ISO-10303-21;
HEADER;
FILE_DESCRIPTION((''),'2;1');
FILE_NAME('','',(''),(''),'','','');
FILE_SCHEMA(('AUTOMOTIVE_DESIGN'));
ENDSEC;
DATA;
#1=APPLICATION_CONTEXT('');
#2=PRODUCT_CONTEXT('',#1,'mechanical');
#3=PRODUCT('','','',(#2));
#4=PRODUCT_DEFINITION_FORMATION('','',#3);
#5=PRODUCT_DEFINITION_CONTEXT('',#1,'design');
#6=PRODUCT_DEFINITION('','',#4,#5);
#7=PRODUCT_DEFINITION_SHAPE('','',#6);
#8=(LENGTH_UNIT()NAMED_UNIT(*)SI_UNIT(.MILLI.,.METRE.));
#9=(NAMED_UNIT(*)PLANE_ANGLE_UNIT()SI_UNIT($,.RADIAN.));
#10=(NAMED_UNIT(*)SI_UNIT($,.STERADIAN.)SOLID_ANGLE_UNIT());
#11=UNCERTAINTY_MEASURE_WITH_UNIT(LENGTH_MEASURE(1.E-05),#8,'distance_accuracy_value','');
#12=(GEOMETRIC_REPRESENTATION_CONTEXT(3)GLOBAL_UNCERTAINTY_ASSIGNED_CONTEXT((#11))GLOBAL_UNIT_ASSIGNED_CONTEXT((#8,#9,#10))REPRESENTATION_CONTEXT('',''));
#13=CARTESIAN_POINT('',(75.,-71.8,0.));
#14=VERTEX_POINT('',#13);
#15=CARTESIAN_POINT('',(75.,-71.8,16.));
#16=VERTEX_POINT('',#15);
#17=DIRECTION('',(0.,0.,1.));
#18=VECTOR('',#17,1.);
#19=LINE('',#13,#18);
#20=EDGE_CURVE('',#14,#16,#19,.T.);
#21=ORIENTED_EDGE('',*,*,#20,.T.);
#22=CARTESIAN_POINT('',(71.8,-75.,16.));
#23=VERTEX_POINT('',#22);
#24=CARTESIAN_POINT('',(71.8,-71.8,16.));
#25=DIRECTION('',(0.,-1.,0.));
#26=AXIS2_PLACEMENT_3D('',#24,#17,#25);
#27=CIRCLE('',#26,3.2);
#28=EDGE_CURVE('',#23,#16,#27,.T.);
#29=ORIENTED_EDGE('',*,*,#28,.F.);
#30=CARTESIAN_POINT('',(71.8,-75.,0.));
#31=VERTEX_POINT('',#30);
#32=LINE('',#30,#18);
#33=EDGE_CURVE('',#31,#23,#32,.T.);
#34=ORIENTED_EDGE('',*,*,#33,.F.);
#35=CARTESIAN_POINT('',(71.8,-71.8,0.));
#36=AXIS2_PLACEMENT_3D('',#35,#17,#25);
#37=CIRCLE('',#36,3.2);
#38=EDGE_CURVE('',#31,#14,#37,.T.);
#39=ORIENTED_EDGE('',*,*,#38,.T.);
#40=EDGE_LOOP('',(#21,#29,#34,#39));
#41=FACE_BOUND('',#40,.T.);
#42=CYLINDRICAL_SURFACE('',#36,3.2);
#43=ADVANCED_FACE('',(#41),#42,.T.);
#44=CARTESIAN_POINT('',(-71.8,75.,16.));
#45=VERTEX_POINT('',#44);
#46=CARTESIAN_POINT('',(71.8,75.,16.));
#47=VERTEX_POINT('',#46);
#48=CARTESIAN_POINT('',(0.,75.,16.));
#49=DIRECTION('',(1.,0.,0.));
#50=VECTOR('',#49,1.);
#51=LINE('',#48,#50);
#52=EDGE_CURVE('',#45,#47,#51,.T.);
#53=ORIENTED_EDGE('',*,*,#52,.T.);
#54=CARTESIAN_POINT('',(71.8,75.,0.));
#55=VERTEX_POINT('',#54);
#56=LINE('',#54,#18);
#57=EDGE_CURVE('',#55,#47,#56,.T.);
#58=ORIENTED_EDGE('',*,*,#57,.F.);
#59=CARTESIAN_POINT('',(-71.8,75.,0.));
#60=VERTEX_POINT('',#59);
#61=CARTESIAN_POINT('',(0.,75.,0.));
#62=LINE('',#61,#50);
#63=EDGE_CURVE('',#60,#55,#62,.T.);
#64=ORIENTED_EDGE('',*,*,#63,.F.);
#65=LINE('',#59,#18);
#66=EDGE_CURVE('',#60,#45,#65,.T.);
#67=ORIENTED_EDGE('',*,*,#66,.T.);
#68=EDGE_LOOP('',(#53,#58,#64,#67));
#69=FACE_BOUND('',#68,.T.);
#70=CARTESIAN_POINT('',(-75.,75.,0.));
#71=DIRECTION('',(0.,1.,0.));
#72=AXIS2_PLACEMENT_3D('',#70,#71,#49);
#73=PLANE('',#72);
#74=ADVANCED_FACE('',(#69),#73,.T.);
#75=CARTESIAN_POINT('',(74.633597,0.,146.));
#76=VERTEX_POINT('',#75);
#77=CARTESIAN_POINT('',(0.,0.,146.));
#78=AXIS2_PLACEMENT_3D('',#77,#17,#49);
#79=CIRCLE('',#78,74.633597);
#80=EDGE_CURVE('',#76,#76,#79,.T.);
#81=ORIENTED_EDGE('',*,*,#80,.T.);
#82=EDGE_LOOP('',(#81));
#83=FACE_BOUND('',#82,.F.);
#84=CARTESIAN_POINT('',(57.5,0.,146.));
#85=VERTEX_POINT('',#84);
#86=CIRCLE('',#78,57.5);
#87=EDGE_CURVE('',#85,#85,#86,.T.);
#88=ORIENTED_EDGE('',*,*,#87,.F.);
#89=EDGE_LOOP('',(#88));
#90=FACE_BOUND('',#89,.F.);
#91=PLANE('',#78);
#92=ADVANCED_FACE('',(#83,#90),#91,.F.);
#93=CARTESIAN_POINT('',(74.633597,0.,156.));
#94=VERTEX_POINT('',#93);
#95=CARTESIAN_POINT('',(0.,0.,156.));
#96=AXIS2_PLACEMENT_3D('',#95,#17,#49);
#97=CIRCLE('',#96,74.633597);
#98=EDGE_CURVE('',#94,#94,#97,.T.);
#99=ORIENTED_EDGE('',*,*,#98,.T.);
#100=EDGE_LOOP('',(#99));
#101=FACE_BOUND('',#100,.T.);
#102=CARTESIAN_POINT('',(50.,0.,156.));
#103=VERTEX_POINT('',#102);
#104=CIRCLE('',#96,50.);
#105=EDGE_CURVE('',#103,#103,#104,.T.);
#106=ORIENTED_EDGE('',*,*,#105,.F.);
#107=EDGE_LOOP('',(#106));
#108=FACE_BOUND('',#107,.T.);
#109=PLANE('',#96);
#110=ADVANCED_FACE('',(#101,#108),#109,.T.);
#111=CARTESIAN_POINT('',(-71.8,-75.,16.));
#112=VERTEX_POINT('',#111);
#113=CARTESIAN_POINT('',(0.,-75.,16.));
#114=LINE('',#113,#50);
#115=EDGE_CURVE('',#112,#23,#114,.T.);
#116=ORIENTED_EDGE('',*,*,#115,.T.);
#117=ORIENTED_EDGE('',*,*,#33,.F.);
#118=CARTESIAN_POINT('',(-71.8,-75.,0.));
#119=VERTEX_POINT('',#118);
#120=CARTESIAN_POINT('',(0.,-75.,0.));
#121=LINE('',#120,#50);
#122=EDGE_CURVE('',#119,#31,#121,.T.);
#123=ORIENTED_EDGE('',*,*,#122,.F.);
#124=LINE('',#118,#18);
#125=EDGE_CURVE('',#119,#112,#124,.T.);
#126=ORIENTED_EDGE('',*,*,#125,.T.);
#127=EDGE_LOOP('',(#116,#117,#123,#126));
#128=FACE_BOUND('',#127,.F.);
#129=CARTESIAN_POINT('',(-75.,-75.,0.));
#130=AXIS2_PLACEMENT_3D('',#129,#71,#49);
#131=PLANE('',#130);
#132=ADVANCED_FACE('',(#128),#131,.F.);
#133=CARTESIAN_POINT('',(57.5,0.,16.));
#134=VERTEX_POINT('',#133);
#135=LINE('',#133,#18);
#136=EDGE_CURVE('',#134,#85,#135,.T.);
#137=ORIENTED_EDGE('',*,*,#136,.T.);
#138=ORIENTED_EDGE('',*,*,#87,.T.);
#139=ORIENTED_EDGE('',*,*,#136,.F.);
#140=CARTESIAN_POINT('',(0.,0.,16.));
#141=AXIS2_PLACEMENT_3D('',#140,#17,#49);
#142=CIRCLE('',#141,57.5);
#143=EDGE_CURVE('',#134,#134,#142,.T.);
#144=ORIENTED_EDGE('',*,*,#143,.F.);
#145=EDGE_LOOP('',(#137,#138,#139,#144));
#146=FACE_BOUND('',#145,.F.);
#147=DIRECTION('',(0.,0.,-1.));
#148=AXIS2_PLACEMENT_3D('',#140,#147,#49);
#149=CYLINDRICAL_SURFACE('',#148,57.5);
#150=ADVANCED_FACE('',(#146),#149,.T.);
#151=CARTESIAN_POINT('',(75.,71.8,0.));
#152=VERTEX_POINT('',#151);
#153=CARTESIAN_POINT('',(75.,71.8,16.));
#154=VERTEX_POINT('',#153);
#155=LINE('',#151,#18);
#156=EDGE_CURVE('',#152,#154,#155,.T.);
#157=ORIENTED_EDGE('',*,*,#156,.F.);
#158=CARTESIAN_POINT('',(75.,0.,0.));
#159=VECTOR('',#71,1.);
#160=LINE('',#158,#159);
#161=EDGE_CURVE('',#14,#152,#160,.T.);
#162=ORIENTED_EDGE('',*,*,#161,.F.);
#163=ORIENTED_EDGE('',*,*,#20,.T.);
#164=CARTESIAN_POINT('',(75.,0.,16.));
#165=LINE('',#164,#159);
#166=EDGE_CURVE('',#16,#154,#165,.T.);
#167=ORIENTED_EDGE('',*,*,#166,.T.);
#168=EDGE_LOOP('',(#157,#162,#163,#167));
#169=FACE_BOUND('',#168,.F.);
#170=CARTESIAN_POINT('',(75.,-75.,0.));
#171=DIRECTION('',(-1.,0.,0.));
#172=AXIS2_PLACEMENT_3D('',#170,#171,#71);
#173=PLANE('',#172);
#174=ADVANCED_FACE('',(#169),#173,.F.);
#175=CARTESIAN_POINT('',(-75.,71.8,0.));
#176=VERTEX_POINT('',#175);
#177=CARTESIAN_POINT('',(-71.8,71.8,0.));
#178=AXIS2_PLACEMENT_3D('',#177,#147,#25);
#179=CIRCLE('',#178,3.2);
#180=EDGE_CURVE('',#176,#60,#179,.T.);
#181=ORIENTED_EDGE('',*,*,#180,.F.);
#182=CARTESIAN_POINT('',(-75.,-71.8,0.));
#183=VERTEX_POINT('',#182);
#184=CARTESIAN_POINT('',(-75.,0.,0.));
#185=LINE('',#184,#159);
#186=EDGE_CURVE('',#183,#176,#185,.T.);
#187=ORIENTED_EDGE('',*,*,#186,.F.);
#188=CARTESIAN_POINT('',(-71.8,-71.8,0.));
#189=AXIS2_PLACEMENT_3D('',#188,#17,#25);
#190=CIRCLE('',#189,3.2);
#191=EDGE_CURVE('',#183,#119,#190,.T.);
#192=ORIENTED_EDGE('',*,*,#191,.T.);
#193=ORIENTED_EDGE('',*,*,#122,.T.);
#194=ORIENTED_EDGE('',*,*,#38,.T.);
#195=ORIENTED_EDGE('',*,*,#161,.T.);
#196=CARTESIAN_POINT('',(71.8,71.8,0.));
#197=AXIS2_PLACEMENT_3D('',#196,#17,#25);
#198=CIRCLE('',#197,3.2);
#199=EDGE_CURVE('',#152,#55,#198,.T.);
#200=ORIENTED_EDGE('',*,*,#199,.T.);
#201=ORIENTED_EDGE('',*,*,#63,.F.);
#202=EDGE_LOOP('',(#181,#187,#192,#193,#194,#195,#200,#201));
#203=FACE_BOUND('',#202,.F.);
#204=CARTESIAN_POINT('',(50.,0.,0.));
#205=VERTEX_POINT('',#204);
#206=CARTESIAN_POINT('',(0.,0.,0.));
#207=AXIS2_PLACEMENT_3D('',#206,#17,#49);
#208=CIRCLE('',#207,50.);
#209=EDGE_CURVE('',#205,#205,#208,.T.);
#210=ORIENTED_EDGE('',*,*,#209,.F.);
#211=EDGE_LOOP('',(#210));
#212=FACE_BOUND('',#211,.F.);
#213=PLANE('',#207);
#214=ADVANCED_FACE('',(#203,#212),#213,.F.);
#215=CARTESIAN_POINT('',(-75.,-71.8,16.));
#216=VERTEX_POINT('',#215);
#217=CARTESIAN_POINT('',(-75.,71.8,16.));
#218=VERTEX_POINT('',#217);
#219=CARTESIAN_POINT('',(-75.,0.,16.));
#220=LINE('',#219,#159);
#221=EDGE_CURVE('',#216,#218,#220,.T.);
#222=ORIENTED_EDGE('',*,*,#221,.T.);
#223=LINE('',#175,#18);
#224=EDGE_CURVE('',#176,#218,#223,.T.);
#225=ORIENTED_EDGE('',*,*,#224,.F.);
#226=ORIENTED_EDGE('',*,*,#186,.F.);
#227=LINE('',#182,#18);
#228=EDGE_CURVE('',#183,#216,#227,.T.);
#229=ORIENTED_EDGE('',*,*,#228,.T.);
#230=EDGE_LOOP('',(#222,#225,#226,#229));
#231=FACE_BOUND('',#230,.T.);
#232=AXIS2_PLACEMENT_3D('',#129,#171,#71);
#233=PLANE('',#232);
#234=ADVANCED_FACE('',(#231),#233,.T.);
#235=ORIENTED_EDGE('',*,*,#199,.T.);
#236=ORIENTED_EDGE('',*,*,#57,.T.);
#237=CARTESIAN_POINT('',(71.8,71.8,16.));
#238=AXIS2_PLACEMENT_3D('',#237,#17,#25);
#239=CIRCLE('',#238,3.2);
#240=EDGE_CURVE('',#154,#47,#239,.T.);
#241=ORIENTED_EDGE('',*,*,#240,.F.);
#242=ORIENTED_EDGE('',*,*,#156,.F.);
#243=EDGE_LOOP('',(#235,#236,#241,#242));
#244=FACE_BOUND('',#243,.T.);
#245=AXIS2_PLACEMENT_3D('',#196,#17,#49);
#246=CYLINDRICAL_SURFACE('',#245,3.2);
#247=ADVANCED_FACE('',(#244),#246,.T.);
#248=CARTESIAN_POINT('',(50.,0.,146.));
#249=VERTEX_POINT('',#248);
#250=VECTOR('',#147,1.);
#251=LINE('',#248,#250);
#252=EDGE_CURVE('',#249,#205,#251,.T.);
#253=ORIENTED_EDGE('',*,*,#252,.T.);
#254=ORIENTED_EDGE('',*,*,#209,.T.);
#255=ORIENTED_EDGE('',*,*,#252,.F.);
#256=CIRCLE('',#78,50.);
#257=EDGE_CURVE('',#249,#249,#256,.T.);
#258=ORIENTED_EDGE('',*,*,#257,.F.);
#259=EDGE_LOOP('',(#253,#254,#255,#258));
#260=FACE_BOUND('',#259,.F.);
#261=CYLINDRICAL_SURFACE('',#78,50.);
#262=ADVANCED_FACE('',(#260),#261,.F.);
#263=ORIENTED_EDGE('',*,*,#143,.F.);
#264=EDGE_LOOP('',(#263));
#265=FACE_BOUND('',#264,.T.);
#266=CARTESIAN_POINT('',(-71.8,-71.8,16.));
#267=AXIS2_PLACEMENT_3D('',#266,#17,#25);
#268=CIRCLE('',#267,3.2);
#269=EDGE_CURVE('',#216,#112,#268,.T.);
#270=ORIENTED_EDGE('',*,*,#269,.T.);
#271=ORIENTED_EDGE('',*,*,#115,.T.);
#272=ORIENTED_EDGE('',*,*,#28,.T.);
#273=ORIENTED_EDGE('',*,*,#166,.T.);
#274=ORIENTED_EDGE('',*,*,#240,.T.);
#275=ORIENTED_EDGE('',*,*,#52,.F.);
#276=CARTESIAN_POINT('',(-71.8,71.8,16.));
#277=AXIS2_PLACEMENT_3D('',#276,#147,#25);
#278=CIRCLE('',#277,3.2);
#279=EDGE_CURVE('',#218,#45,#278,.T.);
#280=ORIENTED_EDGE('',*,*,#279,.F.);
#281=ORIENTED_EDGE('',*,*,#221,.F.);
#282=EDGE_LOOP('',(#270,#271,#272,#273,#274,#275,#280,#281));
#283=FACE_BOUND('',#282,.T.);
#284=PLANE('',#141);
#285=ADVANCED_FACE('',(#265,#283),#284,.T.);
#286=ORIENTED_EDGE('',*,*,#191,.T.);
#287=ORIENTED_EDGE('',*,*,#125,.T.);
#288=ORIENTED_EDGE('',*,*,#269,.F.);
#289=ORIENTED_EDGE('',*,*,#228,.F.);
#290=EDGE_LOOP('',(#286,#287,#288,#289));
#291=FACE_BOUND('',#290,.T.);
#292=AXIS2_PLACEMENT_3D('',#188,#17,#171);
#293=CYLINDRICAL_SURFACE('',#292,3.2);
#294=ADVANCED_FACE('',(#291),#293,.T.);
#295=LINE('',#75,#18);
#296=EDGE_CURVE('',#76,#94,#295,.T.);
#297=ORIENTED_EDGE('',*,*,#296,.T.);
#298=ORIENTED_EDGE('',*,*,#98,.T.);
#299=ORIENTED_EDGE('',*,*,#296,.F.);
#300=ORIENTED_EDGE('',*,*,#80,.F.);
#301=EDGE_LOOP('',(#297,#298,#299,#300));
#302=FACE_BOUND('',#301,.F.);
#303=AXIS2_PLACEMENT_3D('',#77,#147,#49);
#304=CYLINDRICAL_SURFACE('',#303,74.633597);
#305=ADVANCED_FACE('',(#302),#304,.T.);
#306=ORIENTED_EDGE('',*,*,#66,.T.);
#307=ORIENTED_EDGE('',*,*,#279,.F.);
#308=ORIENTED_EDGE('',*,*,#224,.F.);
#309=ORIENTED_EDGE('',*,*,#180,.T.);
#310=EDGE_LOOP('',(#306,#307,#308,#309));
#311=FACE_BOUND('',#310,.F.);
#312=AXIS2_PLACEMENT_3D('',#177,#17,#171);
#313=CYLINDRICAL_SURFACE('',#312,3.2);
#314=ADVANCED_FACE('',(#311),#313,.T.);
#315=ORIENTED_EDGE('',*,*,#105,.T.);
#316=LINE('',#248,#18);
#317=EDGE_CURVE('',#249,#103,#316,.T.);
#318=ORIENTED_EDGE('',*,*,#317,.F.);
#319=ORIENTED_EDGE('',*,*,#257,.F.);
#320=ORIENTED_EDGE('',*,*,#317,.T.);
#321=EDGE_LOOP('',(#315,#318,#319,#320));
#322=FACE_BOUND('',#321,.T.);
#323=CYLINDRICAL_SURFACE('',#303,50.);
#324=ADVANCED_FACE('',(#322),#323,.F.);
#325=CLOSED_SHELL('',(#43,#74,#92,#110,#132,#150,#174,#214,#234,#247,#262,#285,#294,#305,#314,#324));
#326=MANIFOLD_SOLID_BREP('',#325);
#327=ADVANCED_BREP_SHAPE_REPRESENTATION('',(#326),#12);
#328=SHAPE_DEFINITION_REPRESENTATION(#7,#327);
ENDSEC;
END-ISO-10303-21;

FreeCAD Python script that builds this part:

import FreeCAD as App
import Part
import Sketcher

V = App.Vector


def edges_at(feature, points):
    """Names of the edges that pass closest to the given points."""
    edges = feature.Shape.Edges
    near = lambda p: min(range(len(edges)), key=lambda i: edges[i].distToShape(Part.Vertex(*p))[0])
    return sorted({f"Edge{near(p) + 1}" for p in points})


def add_polygon(sketch, points):
    """Adds a closed chain of lines whose ends are joined by coincident constraints."""
    first, n = sketch.GeometryCount, len(points)
    for a, b in zip(points, points[1:] + points[:1]):
        sketch.addGeometry(Part.LineSegment(App.Vector(*a, 0), App.Vector(*b, 0)), False)
    for i in range(n):
        sketch.addConstraint(Sketcher.Constraint("Coincident", first + i, 2, first + (i + 1) % n, 1))

doc = App.newDocument("Part")
params = doc.addObject("Spreadsheet::Sheet", "Params")
for row, (alias, value) in enumerate([
    ("sketch1_width", "150 mm"),
    ("pad1_length", "16 mm"),
    ("fillet_radius", "3.2 mm"),
    ("sketch2_diameter", "115 mm"),
    ("pad2_length", "130 mm"),
    ("sketch3_diameter", "100 mm"),
    ("sketch4_diameter", "100 mm"),
    ("pad3_length", "10 mm"),
], start=1):
    params.set(f"A{row}", alias)
    params.set(f"B{row}", "=" + value)
    params.setAlias(f"B{row}", alias)

body = doc.addObject("PartDesign::Body", "Body")

# Sketch on XY plane
sketch1 = doc.addObject("Sketcher::SketchObject", "Sketch")
body.addObject(sketch1)
sketch1.AttachmentSupport = (doc.XY_Plane, [""])
sketch1.MapMode = "FlatFace"
add_polygon(sketch1, [(-75, 75), (-75, -75), (75, -75), (75, 75)])  # lines 0-3
sketch1.addConstraint(Sketcher.Constraint("Vertical", 0))
sketch1.addConstraint(Sketcher.Constraint("Horizontal", 1))
sketch1.addConstraint(Sketcher.Constraint("Vertical", 2))
sketch1.addConstraint(Sketcher.Constraint("Horizontal", 3))
sketch1.addConstraint(Sketcher.Constraint("Symmetric", 0, 2, 2, 2, -1, 1))
sketch1.addConstraint(Sketcher.Constraint("Equal", 3, 0))
sketch1.addConstraint(Sketcher.Constraint("DistanceX", 1, 1, 1, 2, 150.0))
sketch1.setExpression("Constraints[10]", "Params.sketch1_width")
pad1 = doc.addObject("PartDesign::Pad", "Pad")
body.addObject(pad1)
pad1.Profile = sketch1
pad1.setExpression("Length", "Params.pad1_length")
doc.recompute()

fillet = doc.addObject("PartDesign::Fillet", "Fillet")
body.addObject(fillet)
fillet.Base = (pad1, edges_at(pad1, [
    (-75, 75, 8),
    (75, 75, 8),
    (75, -75, 8),
    (-75, -75, 8),
]))
fillet.setExpression("Radius", "Params.fillet_radius")

# Sketch on XY plane
sketch2 = doc.addObject("Sketcher::SketchObject", "Sketch001")
body.addObject(sketch2)
sketch2.AttachmentSupport = (doc.XY_Plane, [""])
sketch2.MapMode = "FlatFace"
sketch2.AttachmentOffset = App.Placement(V(0, 0, 16), App.Rotation())
sketch2.addGeometry(Part.Circle(V(0, 0, 0), V(0, 0, 1), 58), False)
sketch2.addConstraint(Sketcher.Constraint("Coincident", 0, 3, -1, 1))
sketch2.addConstraint(Sketcher.Constraint("Diameter", 0, 115.0))
sketch2.setExpression("Constraints[1]", "Params.sketch2_diameter")
pad2 = doc.addObject("PartDesign::Pad", "Pad001")
body.addObject(pad2)
pad2.Profile = sketch2
pad2.setExpression("Length", "Params.pad2_length")

# Sketch on XY plane
sketch3 = doc.addObject("Sketcher::SketchObject", "Sketch002")
body.addObject(sketch3)
sketch3.AttachmentSupport = (doc.XY_Plane, [""])
sketch3.MapMode = "FlatFace"
sketch3.AttachmentOffset = App.Placement(V(0, 0, 146), App.Rotation())
sketch3.addGeometry(Part.Circle(V(0, 0, 0), V(0, 0, 1), 50), False)
sketch3.addConstraint(Sketcher.Constraint("Coincident", 0, 3, -1, 1))
sketch3.addConstraint(Sketcher.Constraint("Diameter", 0, 100.0))
sketch3.setExpression("Constraints[1]", "Params.sketch3_diameter")
pocket1 = doc.addObject("PartDesign::Pocket", "Pocket")
body.addObject(pocket1)
pocket1.Profile = sketch3
pocket1.Type = "ThroughAll"

# Sketch on XY plane
sketch4 = doc.addObject("Sketcher::SketchObject", "Sketch003")
body.addObject(sketch4)
sketch4.AttachmentSupport = (doc.XY_Plane, [""])
sketch4.MapMode = "FlatFace"
sketch4.AttachmentOffset = App.Placement(V(0, 0, 146), App.Rotation())
sketch4.addGeometry(Part.Circle(V(0, 0, 0), V(0, 0, 1), 75), False)
sketch4.addGeometry(Part.Circle(V(0, 0, 0), V(0, 0, 1), 50), False)
sketch4.addConstraint(Sketcher.Constraint("Coincident", 0, 3, -1, 1))
sketch4.addConstraint(Sketcher.Constraint("Coincident", 1, 3, -1, 1))
sketch4.addConstraint(Sketcher.Constraint("Diameter", 1, 100.0))
sketch4.addConstraint(Sketcher.Constraint("Diameter", 0, 149.267194))
sketch4.setExpression("Constraints[2]", "Params.sketch4_diameter")
pad3 = doc.addObject("PartDesign::Pad", "Pad002")
body.addObject(pad3)
pad3.Profile = sketch4
pad3.setExpression("Length", "Params.pad3_length")

doc.recompute()
